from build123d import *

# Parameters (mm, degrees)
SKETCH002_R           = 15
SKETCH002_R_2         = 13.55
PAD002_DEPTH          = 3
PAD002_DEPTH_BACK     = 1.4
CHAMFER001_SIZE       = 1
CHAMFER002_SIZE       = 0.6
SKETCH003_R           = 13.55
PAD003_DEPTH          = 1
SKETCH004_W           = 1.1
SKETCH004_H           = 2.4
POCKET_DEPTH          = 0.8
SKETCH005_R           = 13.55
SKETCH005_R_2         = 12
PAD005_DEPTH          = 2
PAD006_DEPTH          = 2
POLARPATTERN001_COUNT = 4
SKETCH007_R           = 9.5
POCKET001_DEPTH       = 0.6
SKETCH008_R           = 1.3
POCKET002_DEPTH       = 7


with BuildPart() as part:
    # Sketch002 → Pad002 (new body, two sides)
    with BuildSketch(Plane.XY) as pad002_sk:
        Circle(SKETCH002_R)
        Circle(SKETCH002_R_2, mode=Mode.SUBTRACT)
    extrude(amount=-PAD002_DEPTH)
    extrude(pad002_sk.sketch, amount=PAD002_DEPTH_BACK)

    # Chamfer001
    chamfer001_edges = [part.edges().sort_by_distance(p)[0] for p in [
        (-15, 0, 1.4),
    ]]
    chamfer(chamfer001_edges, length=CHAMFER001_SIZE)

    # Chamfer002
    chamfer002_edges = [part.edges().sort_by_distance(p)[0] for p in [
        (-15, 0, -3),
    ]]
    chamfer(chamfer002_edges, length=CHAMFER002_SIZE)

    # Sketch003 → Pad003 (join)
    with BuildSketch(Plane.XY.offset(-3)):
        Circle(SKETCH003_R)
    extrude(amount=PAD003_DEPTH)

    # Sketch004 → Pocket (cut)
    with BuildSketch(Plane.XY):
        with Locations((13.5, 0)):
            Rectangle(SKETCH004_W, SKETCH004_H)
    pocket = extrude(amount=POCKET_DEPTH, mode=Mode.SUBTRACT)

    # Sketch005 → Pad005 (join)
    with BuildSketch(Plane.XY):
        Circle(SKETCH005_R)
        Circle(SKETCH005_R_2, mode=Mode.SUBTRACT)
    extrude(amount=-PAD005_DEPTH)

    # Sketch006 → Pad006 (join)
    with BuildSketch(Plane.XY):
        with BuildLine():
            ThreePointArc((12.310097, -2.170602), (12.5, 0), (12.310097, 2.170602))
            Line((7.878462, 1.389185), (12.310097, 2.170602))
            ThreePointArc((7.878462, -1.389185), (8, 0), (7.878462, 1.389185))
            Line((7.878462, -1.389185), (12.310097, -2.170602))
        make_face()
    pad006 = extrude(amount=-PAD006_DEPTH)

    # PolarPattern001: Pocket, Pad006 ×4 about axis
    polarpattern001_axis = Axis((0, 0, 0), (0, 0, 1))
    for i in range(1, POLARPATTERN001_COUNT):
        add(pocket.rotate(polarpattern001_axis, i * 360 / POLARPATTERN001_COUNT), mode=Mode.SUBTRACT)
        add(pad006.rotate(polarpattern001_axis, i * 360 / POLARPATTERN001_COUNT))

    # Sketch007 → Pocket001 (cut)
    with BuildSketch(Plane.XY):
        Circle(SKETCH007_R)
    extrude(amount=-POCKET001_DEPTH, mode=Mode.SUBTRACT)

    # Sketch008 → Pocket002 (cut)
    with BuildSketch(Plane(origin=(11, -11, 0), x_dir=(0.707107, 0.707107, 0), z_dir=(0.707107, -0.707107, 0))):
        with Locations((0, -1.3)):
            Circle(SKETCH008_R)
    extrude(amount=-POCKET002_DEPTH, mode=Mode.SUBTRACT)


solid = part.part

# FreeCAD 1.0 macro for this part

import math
import FreeCAD as App
import Part
import Sketcher
from FreeCAD import Vector
Q = App.Units.Quantity


def edges_at(feature, points):
    """Names of the edges that pass closest to the given points."""
    edges = feature.Shape.Edges
    near = lambda p: min(range(len(edges)), key=lambda i: edges[i].distToShape(Part.Vertex(*p))[0])
    return sorted({f"Edge{near(p) + 1}" for p in points})

doc = App.newDocument("Part")
params = doc.addObject("Spreadsheet::Sheet", "Params")
for row, (alias, value) in enumerate([
    ("sketch1_diameter", "30 mm"),
    ("sketch1_diameter2", "27.1 mm"),
    ("pad1_length", "3 mm"),
    ("pad1_length2", "1.4 mm"),
    ("chamfer_size", "1 mm"),
    ("chamfer2_size", "0.6 mm"),
    ("sketch2_diameter", "27.1 mm"),
    ("pad2_length", "1 mm"),
    ("sketch3_width", "1.1 mm"),
    ("sketch3_height", "2.4 mm"),
    ("pocket1_length", "0.8 mm"),
    ("sketch4_diameter", "24 mm"),
    ("sketch4_diameter2", "27.1 mm"),
    ("pad3_length", "2 mm"),
    ("sketch5_length", "4.5 mm"),
    ("pad4_length", "2 mm"),
    ("sketch6_diameter", "19 mm"),
    ("pocket2_length", "0.6 mm"),
    ("sketch7_diameter", "2.6 mm"),
    ("pocket3_length", "7 mm"),
], start=1):
    params.set(f"A{row}", alias)
    params.set(f"B{row}", "=" + value)
    params.setAlias(f"B{row}", alias)

body = doc.addObject("PartDesign::Body", "Body")

# Sketch on XY plane
sketch1 = doc.addObject("Sketcher::SketchObject", "Sketch")
body.addObject(sketch1)
sketch1.AttachmentSupport = (doc.XY_Plane, [""])
sketch1.MapMode = "FlatFace"
sketch1.addGeometry(Part.Circle(Vector(0, 0, 0), Vector(0, 0, 1), 15), False)
sketch1.addGeometry(Part.Circle(Vector(0, 0, 0), Vector(0, 0, 1), 13.55), False)
sketch1.addConstraint(Sketcher.Constraint("Coincident", 0, 3, -1, 1))
sketch1.addConstraint(Sketcher.Constraint("Coincident", 1, 3, -1, 1))
sketch1.addConstraint(Sketcher.Constraint("Diameter", 0, 30.0))
sketch1.addConstraint(Sketcher.Constraint("Diameter", 1, 27.1))
sketch1.setExpression("Constraints[2]", "Params.sketch1_diameter")
sketch1.setExpression("Constraints[3]", "Params.sketch1_diameter2")
pad1 = doc.addObject("PartDesign::Pad", "Pad")
body.addObject(pad1)
pad1.Profile = sketch1
pad1.Type = "TwoLengths"
pad1.setExpression("Length", "Params.pad1_length")
pad1.setExpression("Length2", "Params.pad1_length2")
pad1.Reversed = True
doc.recompute()

chamfer = doc.addObject("PartDesign::Chamfer", "Chamfer")
body.addObject(chamfer)
chamfer.Base = (pad1, edges_at(pad1, [(-15, 0, 1.4)]))
chamfer.setExpression("Size", "Params.chamfer_size")
doc.recompute()

chamfer2 = doc.addObject("PartDesign::Chamfer", "Chamfer001")
body.addObject(chamfer2)
chamfer2.Base = (chamfer, edges_at(chamfer, [(-15, 0, -3)]))
chamfer2.setExpression("Size", "Params.chamfer2_size")

# Sketch on XY plane
sketch2 = doc.addObject("Sketcher::SketchObject", "Sketch001")
body.addObject(sketch2)
sketch2.AttachmentSupport = (doc.XY_Plane, [""])
sketch2.MapMode = "FlatFace"
sketch2.AttachmentOffset = App.Placement(Vector(0, 0, -3), App.Rotation())
sketch2.addGeometry(Part.Circle(Vector(0, 0, 0), Vector(0, 0, 1), 13.55), False)
sketch2.addConstraint(Sketcher.Constraint("Coincident", 0, 3, -1, 1))
sketch2.addConstraint(Sketcher.Constraint("Diameter", 0, 27.1))
sketch2.setExpression("Constraints[1]", "Params.sketch2_diameter")
pad2 = doc.addObject("PartDesign::Pad", "Pad001")
body.addObject(pad2)
pad2.Profile = sketch2
pad2.setExpression("Length", "Params.pad2_length")

# Sketch on XY plane
sketch3 = doc.addObject("Sketcher::SketchObject", "Sketch002")
body.addObject(sketch3)
sketch3.AttachmentSupport = (doc.XY_Plane, [""])
sketch3.MapMode = "FlatFace"
sketch3.addGeometry(Part.LineSegment(Vector(12.95, 1.2, 0), Vector(12.95, -1.2, 0)), False)
sketch3.addGeometry(Part.LineSegment(Vector(12.95, -1.2, 0), Vector(14.05, -1.2, 0)), False)
sketch3.addGeometry(Part.LineSegment(Vector(14.05, -1.2, 0), Vector(14.05, 1.2, 0)), False)
sketch3.addGeometry(Part.LineSegment(Vector(14.05, 1.2, 0), Vector(12.95, 1.2, 0)), False)
sketch3.addConstraint(Sketcher.Constraint("Coincident", 0, 2, 1, 1))
sketch3.addConstraint(Sketcher.Constraint("Coincident", 1, 2, 2, 1))
sketch3.addConstraint(Sketcher.Constraint("Coincident", 2, 2, 3, 1))
sketch3.addConstraint(Sketcher.Constraint("Coincident", 3, 2, 0, 1))
sketch3.addConstraint(Sketcher.Constraint("Vertical", 0))
sketch3.addConstraint(Sketcher.Constraint("Horizontal", 1))
sketch3.addConstraint(Sketcher.Constraint("Vertical", 2))
sketch3.addConstraint(Sketcher.Constraint("Horizontal", 3))
sketch3.addConstraint(Sketcher.Constraint("DistanceX", 1, 1, 1, 2, 1.1))
sketch3.addConstraint(Sketcher.Constraint("DistanceY", 0, 2, 0, 1, 2.4))
sketch3.addConstraint(Sketcher.Constraint("DistanceY", 0, 2, -1, 1, 1.2))
sketch3.addConstraint(Sketcher.Constraint("DistanceX", -1, 1, 0, 2, 12.95))
sketch3.setExpression("Constraints[8]", "Params.sketch3_width")
sketch3.setExpression("Constraints[9]", "Params.sketch3_height")
pocket1 = doc.addObject("PartDesign::Pocket", "Pocket")
body.addObject(pocket1)
pocket1.Profile = sketch3
pocket1.setExpression("Length", "Params.pocket1_length")
pocket1.Reversed = True

# Sketch on XY plane
sketch4 = doc.addObject("Sketcher::SketchObject", "Sketch003")
body.addObject(sketch4)
sketch4.AttachmentSupport = (doc.XY_Plane, [""])
sketch4.MapMode = "FlatFace"
sketch4.addGeometry(Part.Circle(Vector(0, 0, 0), Vector(0, 0, 1), 13.55), False)
sketch4.addGeometry(Part.Circle(Vector(0, 0, 0), Vector(0, 0, 1), 12), False)
sketch4.addConstraint(Sketcher.Constraint("Coincident", 0, 3, -1, 1))
sketch4.addConstraint(Sketcher.Constraint("Coincident", 1, 3, -1, 1))
sketch4.addConstraint(Sketcher.Constraint("Diameter", 1, 24.0))
sketch4.addConstraint(Sketcher.Constraint("Diameter", 0, 27.1))
sketch4.setExpression("Constraints[2]", "Params.sketch4_diameter")
sketch4.setExpression("Constraints[3]", "Params.sketch4_diameter2")
pad3 = doc.addObject("PartDesign::Pad", "Pad002")
body.addObject(pad3)
pad3.Profile = sketch4
pad3.setExpression("Length", "Params.pad3_length")
pad3.Reversed = True

# Sketch on XY plane
sketch5 = doc.addObject("Sketcher::SketchObject", "Sketch004")
body.addObject(sketch5)
sketch5.AttachmentSupport = (doc.XY_Plane, [""])
sketch5.MapMode = "FlatFace"
sketch5.addGeometry(Part.ArcOfCircle(Part.Circle(Vector(-0.000003, 0, 0), Vector(0, 0, 1), 12.500003), math.radians(-9.999996), math.radians(9.999996)), False)
sketch5.addGeometry(Part.LineSegment(Vector(12.310097, 2.170602, 0), Vector(7.878462, 1.389185, 0)), False)
sketch5.addGeometry(Part.ArcOfCircle(Part.Circle(Vector(0.000006, 0, 0), Vector(0, 0, 1), 7.999994), math.radians(-10.000005), math.radians(10.000005)), False)
sketch5.addGeometry(Part.LineSegment(Vector(7.878462, -1.389185, 0), Vector(12.310097, -2.170602, 0)), False)
sketch5.addConstraint(Sketcher.Constraint("Coincident", 0, 2, 1, 1))
sketch5.addConstraint(Sketcher.Constraint("Coincident", 1, 2, 2, 2))
sketch5.addConstraint(Sketcher.Constraint("Coincident", 2, 1, 3, 1))
sketch5.addConstraint(Sketcher.Constraint("Coincident", 3, 2, 0, 1))
sketch5.addConstraint(Sketcher.Constraint("Coincident", 0, 3, -1, 1))
sketch5.addConstraint(Sketcher.Constraint("Coincident", 2, 3, -1, 1))
sketch5.addConstraint(Sketcher.Constraint("Vertical", 1, 2, 2, 1))
sketch5.addConstraint(Sketcher.Constraint("Vertical", 0, 2, 3, 2))
sketch5.addConstraint(Sketcher.Constraint("Angle", 1, Q("-169.999998 deg")))
sketch5.addConstraint(Sketcher.Constraint("Distance", 1, 4.5))
sketch5.addConstraint(Sketcher.Constraint("Radius", 0, 12.500003))
sketch5.addConstraint(Sketcher.Constraint("DistanceX", 0, 3, 0, 2, 12.3101))
sketch5.setExpression("Constraints[9]", "Params.sketch5_length")
pad4 = doc.addObject("PartDesign::Pad", "Pad003")
body.addObject(pad4)
pad4.Profile = sketch5
pad4.setExpression("Length", "Params.pad4_length")
pad4.Reversed = True
doc.recompute()

polarpattern = doc.addObject("PartDesign::PolarPattern", "PolarPattern")
body.addObject(polarpattern)
polarpattern.Originals = [pocket1, pad4]
polarpattern.Axis = (doc.Z_Axis, [""])
polarpattern.Angle = 360
polarpattern.Occurrences = 4
body.Tip = polarpattern

# Sketch on XY plane
sketch6 = doc.addObject("Sketcher::SketchObject", "Sketch005")
body.addObject(sketch6)
sketch6.AttachmentSupport = (doc.XY_Plane, [""])
sketch6.MapMode = "FlatFace"
sketch6.addGeometry(Part.Circle(Vector(0, 0, 0), Vector(0, 0, 1), 9.5), False)
sketch6.addConstraint(Sketcher.Constraint("Coincident", 0, 3, -1, 1))
sketch6.addConstraint(Sketcher.Constraint("Diameter", 0, 19.0))
sketch6.setExpression("Constraints[1]", "Params.sketch6_diameter")
pocket2 = doc.addObject("PartDesign::Pocket", "Pocket001")
body.addObject(pocket2)
pocket2.Profile = sketch6
pocket2.setExpression("Length", "Params.pocket2_length")

# Sketch on an angled plane
sketch7 = doc.addObject("Sketcher::SketchObject", "Sketch006")
body.addObject(sketch7)
sketch7.Placement = App.Placement(Vector(11, -11, 0), App.Rotation(Vector(0.707106781, 0.707106781, 0), Vector(0, 0, 0.999999999), Vector(0.707106781, -0.707106781, 0), "ZXY"))
sketch7.addGeometry(Part.Circle(Vector(0, -1.3, 0), Vector(0, 0, 1), 1.3), False)
sketch7.addConstraint(Sketcher.Constraint("PointOnObject", 0, 3, -2))
sketch7.addConstraint(Sketcher.Constraint("Diameter", 0, 2.6))
sketch7.addConstraint(Sketcher.Constraint("DistanceY", 0, 3, -1, 1, 1.3))
sketch7.setExpression("Constraints[1]", "Params.sketch7_diameter")
pocket3 = doc.addObject("PartDesign::Pocket", "Pocket002")
body.addObject(pocket3)
pocket3.Profile = sketch7
pocket3.setExpression("Length", "Params.pocket3_length")

doc.recompute()
